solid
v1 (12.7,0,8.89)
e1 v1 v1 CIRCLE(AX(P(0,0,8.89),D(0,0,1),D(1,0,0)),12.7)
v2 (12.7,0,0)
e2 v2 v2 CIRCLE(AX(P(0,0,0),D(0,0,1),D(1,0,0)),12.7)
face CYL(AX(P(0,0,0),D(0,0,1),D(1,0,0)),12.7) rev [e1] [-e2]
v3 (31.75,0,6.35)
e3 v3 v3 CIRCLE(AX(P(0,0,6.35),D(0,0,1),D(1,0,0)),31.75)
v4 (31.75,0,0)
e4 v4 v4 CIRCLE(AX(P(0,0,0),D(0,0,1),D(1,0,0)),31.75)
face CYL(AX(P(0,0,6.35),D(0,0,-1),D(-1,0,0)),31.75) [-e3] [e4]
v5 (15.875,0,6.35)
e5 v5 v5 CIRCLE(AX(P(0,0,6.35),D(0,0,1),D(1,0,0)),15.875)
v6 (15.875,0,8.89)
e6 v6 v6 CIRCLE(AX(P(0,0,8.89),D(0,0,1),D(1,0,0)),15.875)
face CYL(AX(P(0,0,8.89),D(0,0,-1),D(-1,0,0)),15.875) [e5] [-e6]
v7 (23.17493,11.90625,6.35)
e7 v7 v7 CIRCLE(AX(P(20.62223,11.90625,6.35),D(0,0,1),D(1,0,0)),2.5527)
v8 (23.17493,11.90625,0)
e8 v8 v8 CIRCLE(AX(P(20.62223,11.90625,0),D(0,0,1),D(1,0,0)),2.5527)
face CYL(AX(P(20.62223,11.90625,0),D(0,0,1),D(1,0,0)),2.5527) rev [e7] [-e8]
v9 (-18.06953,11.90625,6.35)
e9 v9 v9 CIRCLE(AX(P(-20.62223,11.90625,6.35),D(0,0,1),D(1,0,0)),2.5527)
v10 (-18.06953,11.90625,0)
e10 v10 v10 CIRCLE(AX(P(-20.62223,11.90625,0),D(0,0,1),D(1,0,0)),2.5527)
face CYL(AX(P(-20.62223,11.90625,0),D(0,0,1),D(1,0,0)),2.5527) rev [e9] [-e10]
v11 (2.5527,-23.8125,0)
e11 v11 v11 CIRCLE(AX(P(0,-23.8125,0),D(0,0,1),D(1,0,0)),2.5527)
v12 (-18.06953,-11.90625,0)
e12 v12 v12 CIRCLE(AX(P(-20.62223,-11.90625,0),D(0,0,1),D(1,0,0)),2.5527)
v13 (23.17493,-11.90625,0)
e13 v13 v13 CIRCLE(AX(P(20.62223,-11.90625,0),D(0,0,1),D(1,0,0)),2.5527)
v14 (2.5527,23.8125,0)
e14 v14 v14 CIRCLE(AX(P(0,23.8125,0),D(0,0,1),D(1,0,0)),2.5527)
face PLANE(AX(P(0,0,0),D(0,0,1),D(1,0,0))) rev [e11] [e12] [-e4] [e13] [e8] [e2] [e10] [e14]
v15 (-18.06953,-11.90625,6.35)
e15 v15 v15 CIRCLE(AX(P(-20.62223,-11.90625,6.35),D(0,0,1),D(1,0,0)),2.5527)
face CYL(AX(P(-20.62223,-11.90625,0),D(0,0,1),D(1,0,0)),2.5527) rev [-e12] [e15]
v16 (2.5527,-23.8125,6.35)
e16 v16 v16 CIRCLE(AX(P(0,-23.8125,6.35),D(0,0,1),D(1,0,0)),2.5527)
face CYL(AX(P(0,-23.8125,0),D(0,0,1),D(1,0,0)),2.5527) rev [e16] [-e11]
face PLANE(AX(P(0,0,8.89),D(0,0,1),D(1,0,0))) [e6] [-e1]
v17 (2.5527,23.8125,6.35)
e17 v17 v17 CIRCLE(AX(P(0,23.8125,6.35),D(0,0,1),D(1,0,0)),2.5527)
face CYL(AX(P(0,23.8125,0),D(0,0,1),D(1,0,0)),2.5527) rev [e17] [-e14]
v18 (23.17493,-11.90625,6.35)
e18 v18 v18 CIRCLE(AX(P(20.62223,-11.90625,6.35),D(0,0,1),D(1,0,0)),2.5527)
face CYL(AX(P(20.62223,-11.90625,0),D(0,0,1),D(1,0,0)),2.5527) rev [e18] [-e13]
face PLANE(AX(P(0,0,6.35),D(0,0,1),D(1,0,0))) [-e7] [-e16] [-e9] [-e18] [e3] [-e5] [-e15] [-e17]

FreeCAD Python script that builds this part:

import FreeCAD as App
import Part
import Sketcher
from FreeCAD import Vector
Q = App.Units.Quantity

doc = App.newDocument("Part")
body = doc.addObject("PartDesign::Body", "Body")

# Sketch on XY plane
sketch1 = body.newObject("Sketcher::SketchObject", "Sketch")
sketch1.AttachmentSupport = (doc.getObject("XY_Plane"), [""])
sketch1.MapMode = "FlatFace"
sketch1.addGeometry(Part.Circle(Vector(0, 0, 0), Vector(0, 0, 1), 32), False)
sketch1.addConstraint([
    Sketcher.Constraint("Coincident", 0, 3, -1, 1),
    Sketcher.Constraint("Diameter", 0, Q("2.5 in")),
])
pad1 = body.newObject("PartDesign::Pad", "Pad")
pad1.Profile = sketch1
pad1.Length = Q("0.25 in")

# Sketch on XY plane
sketch2 = body.newObject("Sketcher::SketchObject", "Sketch001")
sketch2.AttachmentSupport = (doc.getObject("XY_Plane"), [""])
sketch2.MapMode = "FlatFace"
sketch2.AttachmentOffset = App.Placement(Vector(0, 0, 0.25 * 25.4), App.Rotation())
sketch2.addGeometry([
    Part.Circle(Vector(0, 0, 0), Vector(0, 0, 1), 12.7),  # 0
    Part.Circle(Vector(0, 23.8, 0), Vector(0, 0, 1), 2.6),  # 1
    Part.Circle(Vector(20.6, 11.9, 0), Vector(0, 0, 1), 2.6),  # 2
    Part.Circle(Vector(20.6, -11.9, 0), Vector(0, 0, 1), 2.6),  # 3
    Part.Circle(Vector(0, -23.8, 0), Vector(0, 0, 1), 2.6),  # 4
    Part.Circle(Vector(-20.6, -11.9, 0), Vector(0, 0, 1), 2.6),  # 5
    Part.Circle(Vector(-20.6, 11.9, 0), Vector(0, 0, 1), 2.6),  # 6
], False)
sketch2.addConstraint([
    Sketcher.Constraint("Coincident", 0, 3, -1, 1),
    Sketcher.Constraint("Equal", 1, 2),
    Sketcher.Constraint("Equal", 2, 3),
    Sketcher.Constraint("Equal", 3, 4),
    Sketcher.Constraint("Equal", 4, 5),
    Sketcher.Constraint("Equal", 5, 6),
    Sketcher.Constraint("Symmetric", 1, 3, 4, 3, -1, 1),
    Sketcher.Constraint("Symmetric", 2, 3, 5, 3, -1, 1),
    Sketcher.Constraint("Symmetric", 3, 3, 6, 3, -1, 1),
    Sketcher.Constraint("Symmetric", 3, 3, 5, 3, -2),
    Sketcher.Constraint("PointOnObject", 1, 3, -2),
    Sketcher.Constraint("Diameter", 0, Q("1 in")),
    Sketcher.Constraint("Diameter", 1, Q("0.201 in")),
    Sketcher.Constraint("DistanceY", -1, 1, 1, 3, Q("0.9375 in")),
    Sketcher.Constraint("DistanceY", -1, 1, 2, 3, Q("0.46875 in")),
    Sketcher.Constraint("DistanceX", -1, 1, 2, 3, Q("20.62223 mm")),
])
pocket1 = body.newObject("PartDesign::Pocket", "Pocket")
pocket1.Profile = sketch2
pocket1.Type = "ThroughAll"

# Sketch on XY plane
sketch3 = body.newObject("Sketcher::SketchObject", "Sketch002")
sketch3.AttachmentSupport = (doc.getObject("XY_Plane"), [""])
sketch3.MapMode = "FlatFace"
sketch3.AttachmentOffset = App.Placement(Vector(0, 0, 0.25 * 25.4), App.Rotation())
sketch3.addGeometry([
    Part.Circle(Vector(0, 0, 0), Vector(0, 0, 1), 16),
    Part.Circle(Vector(0, 0, 0), Vector(0, 0, 1), 13),
], False)
sketch3.addConstraint([
    Sketcher.Constraint("Coincident", 0, 3, -1, 1),
    Sketcher.Constraint("Coincident", 1, 3, -1, 1),
    Sketcher.Constraint("Diameter", 1, Q("1 in")),
    Sketcher.Constraint("Diameter", 0, Q("1.25 in")),
])
pad2 = body.newObject("PartDesign::Pad", "Pad001")
pad2.Profile = sketch3
pad2.Length = Q("0.1 in")

doc.recompute()
